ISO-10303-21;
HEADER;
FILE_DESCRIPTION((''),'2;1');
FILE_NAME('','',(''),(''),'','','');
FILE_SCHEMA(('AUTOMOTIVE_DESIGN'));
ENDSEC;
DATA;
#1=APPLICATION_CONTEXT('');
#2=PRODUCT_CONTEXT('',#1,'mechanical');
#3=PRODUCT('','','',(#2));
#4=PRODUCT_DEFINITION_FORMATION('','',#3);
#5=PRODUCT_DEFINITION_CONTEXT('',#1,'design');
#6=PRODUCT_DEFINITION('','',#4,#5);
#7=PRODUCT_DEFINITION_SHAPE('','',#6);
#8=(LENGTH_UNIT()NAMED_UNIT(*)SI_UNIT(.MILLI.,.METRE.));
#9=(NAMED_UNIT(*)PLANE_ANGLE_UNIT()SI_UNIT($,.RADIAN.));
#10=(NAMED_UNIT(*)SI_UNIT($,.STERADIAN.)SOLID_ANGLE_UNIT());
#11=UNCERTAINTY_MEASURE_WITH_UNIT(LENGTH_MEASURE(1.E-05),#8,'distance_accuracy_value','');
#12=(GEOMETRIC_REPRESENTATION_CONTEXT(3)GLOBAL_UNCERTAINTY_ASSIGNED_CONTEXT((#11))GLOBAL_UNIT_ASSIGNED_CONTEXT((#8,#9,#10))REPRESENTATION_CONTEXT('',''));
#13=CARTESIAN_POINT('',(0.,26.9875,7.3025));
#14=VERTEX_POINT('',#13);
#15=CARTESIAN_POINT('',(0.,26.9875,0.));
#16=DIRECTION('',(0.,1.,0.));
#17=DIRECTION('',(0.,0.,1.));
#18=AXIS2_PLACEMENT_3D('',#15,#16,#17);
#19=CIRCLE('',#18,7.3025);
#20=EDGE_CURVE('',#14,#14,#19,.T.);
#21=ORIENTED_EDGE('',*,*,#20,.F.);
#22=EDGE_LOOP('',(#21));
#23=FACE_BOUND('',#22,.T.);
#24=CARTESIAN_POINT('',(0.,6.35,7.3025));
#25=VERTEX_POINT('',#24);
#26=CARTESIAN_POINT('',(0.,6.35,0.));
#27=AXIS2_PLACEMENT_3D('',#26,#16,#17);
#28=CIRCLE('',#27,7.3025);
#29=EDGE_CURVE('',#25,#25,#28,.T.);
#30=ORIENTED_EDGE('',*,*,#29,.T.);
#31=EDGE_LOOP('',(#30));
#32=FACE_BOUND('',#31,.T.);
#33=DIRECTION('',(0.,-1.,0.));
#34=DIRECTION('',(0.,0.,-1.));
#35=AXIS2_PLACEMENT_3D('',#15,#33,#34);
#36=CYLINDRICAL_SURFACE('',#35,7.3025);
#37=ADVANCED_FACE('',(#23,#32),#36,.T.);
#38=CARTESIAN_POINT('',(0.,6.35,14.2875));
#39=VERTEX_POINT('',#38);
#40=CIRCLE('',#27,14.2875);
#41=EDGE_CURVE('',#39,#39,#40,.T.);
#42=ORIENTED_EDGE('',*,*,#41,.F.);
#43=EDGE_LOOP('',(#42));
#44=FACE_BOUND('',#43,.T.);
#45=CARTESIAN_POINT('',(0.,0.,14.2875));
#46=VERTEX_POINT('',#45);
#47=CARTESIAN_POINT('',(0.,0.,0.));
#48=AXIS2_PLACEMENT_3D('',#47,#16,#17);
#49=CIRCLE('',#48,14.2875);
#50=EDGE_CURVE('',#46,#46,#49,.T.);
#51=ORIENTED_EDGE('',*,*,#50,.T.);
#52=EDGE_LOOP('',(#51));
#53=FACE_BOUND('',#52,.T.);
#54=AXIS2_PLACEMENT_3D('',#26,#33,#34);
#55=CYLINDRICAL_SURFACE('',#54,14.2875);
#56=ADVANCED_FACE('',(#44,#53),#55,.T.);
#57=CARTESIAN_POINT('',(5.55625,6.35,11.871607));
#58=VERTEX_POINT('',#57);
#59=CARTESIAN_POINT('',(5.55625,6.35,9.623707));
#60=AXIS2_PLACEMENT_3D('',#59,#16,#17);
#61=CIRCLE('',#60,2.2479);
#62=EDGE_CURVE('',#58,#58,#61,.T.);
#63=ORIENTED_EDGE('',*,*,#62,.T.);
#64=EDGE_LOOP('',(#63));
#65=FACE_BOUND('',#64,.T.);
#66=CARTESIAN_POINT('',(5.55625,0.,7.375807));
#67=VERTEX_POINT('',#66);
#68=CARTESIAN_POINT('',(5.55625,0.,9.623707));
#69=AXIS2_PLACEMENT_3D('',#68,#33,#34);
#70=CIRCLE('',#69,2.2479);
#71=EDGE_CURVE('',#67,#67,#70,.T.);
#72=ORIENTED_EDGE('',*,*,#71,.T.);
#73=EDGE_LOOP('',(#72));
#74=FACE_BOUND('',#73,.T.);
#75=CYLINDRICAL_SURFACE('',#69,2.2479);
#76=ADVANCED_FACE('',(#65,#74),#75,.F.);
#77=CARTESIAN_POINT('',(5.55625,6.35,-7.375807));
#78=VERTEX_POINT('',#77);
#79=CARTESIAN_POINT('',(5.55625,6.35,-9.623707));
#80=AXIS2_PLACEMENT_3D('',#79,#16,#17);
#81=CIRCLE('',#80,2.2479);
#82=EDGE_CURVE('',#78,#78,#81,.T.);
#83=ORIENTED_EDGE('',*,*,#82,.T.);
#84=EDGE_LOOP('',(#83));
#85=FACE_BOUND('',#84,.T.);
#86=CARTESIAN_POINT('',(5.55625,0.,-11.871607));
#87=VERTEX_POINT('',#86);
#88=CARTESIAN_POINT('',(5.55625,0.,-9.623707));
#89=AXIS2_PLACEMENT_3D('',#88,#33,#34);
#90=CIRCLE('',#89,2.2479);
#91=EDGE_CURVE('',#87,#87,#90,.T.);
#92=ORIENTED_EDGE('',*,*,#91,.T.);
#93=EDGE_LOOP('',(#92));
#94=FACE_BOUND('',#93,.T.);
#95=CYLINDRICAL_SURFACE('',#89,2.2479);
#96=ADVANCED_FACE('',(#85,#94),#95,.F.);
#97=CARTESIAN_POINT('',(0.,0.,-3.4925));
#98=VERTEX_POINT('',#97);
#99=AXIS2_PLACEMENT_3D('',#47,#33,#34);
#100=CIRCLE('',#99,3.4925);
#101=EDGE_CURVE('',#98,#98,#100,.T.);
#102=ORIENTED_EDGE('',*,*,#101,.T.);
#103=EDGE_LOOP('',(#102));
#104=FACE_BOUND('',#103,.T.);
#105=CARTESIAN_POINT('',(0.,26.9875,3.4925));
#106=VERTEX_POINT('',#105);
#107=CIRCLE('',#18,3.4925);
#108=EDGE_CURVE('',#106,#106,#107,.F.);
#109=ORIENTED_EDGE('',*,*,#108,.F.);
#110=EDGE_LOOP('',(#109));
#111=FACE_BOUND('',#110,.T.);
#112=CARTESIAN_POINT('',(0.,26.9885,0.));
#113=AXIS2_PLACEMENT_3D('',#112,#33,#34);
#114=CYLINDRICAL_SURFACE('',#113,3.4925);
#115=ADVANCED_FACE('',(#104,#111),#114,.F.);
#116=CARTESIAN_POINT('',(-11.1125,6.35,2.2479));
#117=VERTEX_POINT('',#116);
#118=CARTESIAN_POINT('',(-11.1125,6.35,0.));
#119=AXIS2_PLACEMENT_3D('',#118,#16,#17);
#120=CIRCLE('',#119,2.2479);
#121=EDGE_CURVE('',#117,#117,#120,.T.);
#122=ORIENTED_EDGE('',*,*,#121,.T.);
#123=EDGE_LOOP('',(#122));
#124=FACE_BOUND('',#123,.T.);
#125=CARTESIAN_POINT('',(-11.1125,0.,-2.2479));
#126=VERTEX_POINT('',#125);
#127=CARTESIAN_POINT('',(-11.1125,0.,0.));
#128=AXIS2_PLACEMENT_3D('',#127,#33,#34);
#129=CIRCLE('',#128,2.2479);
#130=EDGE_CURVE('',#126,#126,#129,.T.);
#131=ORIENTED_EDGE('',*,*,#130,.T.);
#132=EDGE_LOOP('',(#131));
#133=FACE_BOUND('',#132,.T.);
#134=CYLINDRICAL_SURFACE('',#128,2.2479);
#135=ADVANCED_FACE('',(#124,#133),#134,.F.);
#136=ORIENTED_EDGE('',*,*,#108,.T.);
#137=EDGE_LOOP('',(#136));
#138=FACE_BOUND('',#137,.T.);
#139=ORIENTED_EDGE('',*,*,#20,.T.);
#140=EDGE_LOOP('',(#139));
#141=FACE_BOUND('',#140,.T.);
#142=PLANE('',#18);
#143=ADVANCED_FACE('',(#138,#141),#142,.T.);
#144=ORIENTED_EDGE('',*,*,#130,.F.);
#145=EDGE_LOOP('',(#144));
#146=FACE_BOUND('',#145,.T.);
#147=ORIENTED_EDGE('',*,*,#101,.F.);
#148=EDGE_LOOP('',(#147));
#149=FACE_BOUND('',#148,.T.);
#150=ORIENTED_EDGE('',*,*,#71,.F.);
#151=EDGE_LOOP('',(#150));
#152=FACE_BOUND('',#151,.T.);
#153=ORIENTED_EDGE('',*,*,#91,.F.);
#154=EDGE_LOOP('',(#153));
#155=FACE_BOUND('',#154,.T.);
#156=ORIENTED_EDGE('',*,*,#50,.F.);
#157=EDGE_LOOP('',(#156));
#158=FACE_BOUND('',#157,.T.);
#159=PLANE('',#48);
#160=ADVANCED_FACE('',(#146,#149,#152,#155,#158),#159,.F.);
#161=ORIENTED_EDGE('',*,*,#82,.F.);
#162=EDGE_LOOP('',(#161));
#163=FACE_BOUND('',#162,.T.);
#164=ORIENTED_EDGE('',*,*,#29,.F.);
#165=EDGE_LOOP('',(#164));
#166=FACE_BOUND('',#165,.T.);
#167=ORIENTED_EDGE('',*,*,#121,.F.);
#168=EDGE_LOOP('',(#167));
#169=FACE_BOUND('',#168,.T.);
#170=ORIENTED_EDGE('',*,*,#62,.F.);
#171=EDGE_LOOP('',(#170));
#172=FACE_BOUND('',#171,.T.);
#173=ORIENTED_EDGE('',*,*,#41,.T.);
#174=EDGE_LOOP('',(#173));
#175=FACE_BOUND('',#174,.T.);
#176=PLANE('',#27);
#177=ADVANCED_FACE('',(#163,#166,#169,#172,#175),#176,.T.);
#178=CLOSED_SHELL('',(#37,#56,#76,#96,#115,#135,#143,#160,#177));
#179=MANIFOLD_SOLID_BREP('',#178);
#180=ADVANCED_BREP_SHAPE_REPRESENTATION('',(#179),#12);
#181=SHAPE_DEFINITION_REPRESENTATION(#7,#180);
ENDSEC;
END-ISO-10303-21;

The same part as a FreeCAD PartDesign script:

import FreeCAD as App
import Part
import Sketcher
Q = App.Units.Quantity

doc = App.newDocument("Part")
params = doc.addObject("Spreadsheet::Sheet", "Params")
for row, (alias, value) in enumerate([
    ("sketch1_diameter", "1.125 in"),
    ("pad1_length", "0.25 in"),
    ("sketch2_diameter", "0.575 in"),
    ("pad2_length", "0.8125 in"),
    ("sketch3_diameter", "0.275 in"),
    ("sketch4_diameter", "0.177 in"),
    ("hole_diameter", "0.177 in"),
], start=1):
    params.set(f"A{row}", alias)
    params.set(f"B{row}", "=" + value)
    params.setAlias(f"B{row}", alias)

body = doc.addObject("PartDesign::Body", "Body")

sketch1 = body.newObject("Sketcher::SketchObject", "Sketch")
sketch1.AttachmentSupport = (doc.getObject("XZ_Plane"), [""])
sketch1.MapMode = "FlatFace"
sketch1.addGeometry(Part.Circle(App.Vector(0, 0, 0), App.Vector(0, 0, 1), 14), False)
sketch1.addConstraint(Sketcher.Constraint("Coincident", 0, 3, -1, 1))
sketch1.addConstraint(Sketcher.Constraint("Diameter", 0, Q("1.125 in")))
sketch1.setExpression("Constraints[1]", "Params.sketch1_diameter")
pad1 = body.newObject("PartDesign::Pad", "Pad")
pad1.Profile = sketch1
pad1.setExpression("Length", "Params.pad1_length")
pad1.Reversed = True

sketch2 = body.newObject("Sketcher::SketchObject", "Sketch001")
sketch2.AttachmentSupport = (doc.getObject("XZ_Plane"), [""])
sketch2.MapMode = "FlatFace"
sketch2.AttachmentOffset = App.Placement(App.Vector(0, 0, -0.25 * 25.4), App.Rotation())
sketch2.addGeometry(Part.Circle(App.Vector(0, 0, 0), App.Vector(0, 0, 1), 7), False)
sketch2.addConstraint(Sketcher.Constraint("Coincident", 0, 3, -1, 1))
sketch2.addConstraint(Sketcher.Constraint("Diameter", 0, Q("0.575 in")))
sketch2.setExpression("Constraints[1]", "Params.sketch2_diameter")
pad2 = body.newObject("PartDesign::Pad", "Pad001")
pad2.Profile = sketch2
pad2.setExpression("Length", "Params.pad2_length")
pad2.Reversed = True

sketch3 = body.newObject("Sketcher::SketchObject", "Sketch002")
sketch3.AttachmentSupport = (doc.getObject("XZ_Plane"), [""])
sketch3.MapMode = "FlatFace"
sketch3.addGeometry(Part.Circle(App.Vector(0, 0, 0), App.Vector(0, 0, 1), 3.5), False)
sketch3.addConstraint(Sketcher.Constraint("Coincident", 0, 3, -1, 1))
sketch3.addConstraint(Sketcher.Constraint("Diameter", 0, Q("0.275 in")))
sketch3.setExpression("Constraints[1]", "Params.sketch3_diameter")
pocket1 = body.newObject("PartDesign::Pocket", "Pocket")
pocket1.Profile = sketch3
pocket1.Type = "UpToFirst"

sketch4 = body.newObject("Sketcher::SketchObject", "Sketch003")
sketch4.AttachmentSupport = (doc.getObject("XZ_Plane"), [""])
sketch4.MapMode = "FlatFace"
sketch4.addGeometry(Part.Circle(App.Vector(5.6, -9.6, 0), App.Vector(0, 0, 1), 2.2), False)
sketch4.addGeometry(Part.Circle(App.Vector(-11.1, 0, 0), App.Vector(0, 0, 1), 2.2), False)
sketch4.addGeometry(Part.Circle(App.Vector(5.6, 9.6, 0), App.Vector(0, 0, 1), 2.2), False)
sketch4.addConstraint(Sketcher.Constraint("Equal", 0, 1))
sketch4.addConstraint(Sketcher.Constraint("Equal", 1, 2))
sketch4.addConstraint(Sketcher.Constraint("Symmetric", 0, 3, 2, 3, -1))
sketch4.addConstraint(Sketcher.Constraint("PointOnObject", 1, 3, -1))
sketch4.addConstraint(Sketcher.Constraint("Diameter", 0, Q("0.177 in")))
sketch4.addConstraint(Sketcher.Constraint("DistanceX", -1, 1, 0, 3, Q("0.21875 in")))
sketch4.addConstraint(Sketcher.Constraint("DistanceX", 1, 3, -1, 1, Q("0.4375 in")))
sketch4.addConstraint(Sketcher.Constraint("DistanceY", 0, 3, -1, 1, Q("9.623707 mm")))
sketch4.setExpression("Constraints[4]", "Params.sketch4_diameter")
doc.recompute()
hole = body.newObject("PartDesign::Hole", "Hole")
hole.Profile = sketch4
hole.ThreadType = "None"
hole.setExpression("Diameter", "Params.hole_diameter")
hole.DepthType = "ThroughAll"

doc.recompute()
